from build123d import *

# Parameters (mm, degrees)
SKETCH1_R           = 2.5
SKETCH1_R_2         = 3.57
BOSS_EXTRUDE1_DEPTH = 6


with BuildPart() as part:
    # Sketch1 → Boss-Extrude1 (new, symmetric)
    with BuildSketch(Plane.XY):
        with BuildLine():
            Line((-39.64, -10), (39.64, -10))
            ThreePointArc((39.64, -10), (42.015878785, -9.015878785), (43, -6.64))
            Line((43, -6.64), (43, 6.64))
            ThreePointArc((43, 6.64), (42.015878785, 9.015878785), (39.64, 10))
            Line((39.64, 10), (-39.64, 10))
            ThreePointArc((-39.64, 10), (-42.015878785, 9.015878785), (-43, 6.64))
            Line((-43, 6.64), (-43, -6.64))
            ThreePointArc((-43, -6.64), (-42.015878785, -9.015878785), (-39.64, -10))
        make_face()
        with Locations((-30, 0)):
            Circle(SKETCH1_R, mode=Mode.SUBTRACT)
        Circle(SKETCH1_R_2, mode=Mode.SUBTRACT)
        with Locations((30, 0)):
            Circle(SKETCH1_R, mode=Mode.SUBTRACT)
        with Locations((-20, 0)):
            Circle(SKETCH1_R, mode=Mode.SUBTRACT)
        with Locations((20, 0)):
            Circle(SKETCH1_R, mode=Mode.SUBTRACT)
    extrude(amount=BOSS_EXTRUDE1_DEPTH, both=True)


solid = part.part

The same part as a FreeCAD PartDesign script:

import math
import FreeCAD as App
import Part
import Sketcher

doc = App.newDocument("Part")
body = doc.addObject("PartDesign::Body", "Body")

# Sketch on XY plane
sketch1 = body.newObject("Sketcher::SketchObject", "Sketch")
sketch1.AttachmentSupport = (doc.getObject("XY_Plane"), [""])
sketch1.MapMode = "FlatFace"
sketch1.addGeometry([
    Part.LineSegment(App.Vector(-39.64, -10, 0), App.Vector(39.64, -10, 0)),  # 0
    Part.ArcOfCircle(Part.Circle(App.Vector(39.64, -6.64, 0), App.Vector(0, 0, 1), 3.36), math.radians(-90), math.radians(0)),  # 1
    Part.LineSegment(App.Vector(43, -6.64, 0), App.Vector(43, 6.64, 0)),  # 2
    Part.ArcOfCircle(Part.Circle(App.Vector(39.64, 6.64, 0), App.Vector(0, 0, 1), 3.36), math.radians(0), math.radians(90)),  # 3
    Part.LineSegment(App.Vector(39.64, 10, 0), App.Vector(-39.64, 10, 0)),  # 4
    Part.ArcOfCircle(Part.Circle(App.Vector(-39.64, 6.64, 0), App.Vector(0, 0, 1), 3.36), math.radians(90), math.radians(180)),  # 5
    Part.LineSegment(App.Vector(-43, 6.64, 0), App.Vector(-43, -6.64, 0)),  # 6
    Part.ArcOfCircle(Part.Circle(App.Vector(-39.64, -6.64, 0), App.Vector(0, 0, 1), 3.36), math.radians(180), math.radians(270)),  # 7
    Part.Circle(App.Vector(-30, 0, 0), App.Vector(0, 0, 1), 2.5),  # 8
    Part.Circle(App.Vector(-20, 0, 0), App.Vector(0, 0, 1), 2.5),  # 9
    Part.Circle(App.Vector(0, 0, 0), App.Vector(0, 0, 1), 3.57),  # 10
    Part.Circle(App.Vector(20, 0, 0), App.Vector(0, 0, 1), 2.5),  # 11
    Part.Circle(App.Vector(30, 0, 0), App.Vector(0, 0, 1), 2.5),  # 12
], False)
sketch1.addConstraint([
    Sketcher.Constraint("Tangent", 0, 2, 1, 1),
    Sketcher.Constraint("Tangent", 1, 2, 2, 1),
    Sketcher.Constraint("Tangent", 2, 2, 3, 1),
    Sketcher.Constraint("Tangent", 3, 2, 4, 1),
    Sketcher.Constraint("Tangent", 4, 2, 5, 1),
    Sketcher.Constraint("Tangent", 5, 2, 6, 1),
    Sketcher.Constraint("Tangent", 6, 2, 7, 1),
    Sketcher.Constraint("Tangent", 7, 2, 0, 1),
    Sketcher.Constraint("Horizontal", 0),
    Sketcher.Constraint("Vertical", 2),
    Sketcher.Constraint("Horizontal", 4),
    Sketcher.Constraint("Vertical", 6),
    Sketcher.Constraint("Coincident", 10, 3, -1, 1),
    Sketcher.Constraint("Equal", 1, 3),
    Sketcher.Constraint("Equal", 3, 5),
    Sketcher.Constraint("Equal", 5, 7),
    Sketcher.Constraint("Equal", 8, 9),
    Sketcher.Constraint("Equal", 9, 11),
    Sketcher.Constraint("Equal", 11, 12),
    Sketcher.Constraint("Symmetric", 1, 3, 5, 3, -1, 1),
    Sketcher.Constraint("Symmetric", 9, 3, 11, 3, -1, 1),
    Sketcher.Constraint("Symmetric", 8, 3, 12, 3, -1, 1),
    Sketcher.Constraint("PointOnObject", 8, 3, -1),
    Sketcher.Constraint("PointOnObject", 9, 3, -1),
    Sketcher.Constraint("Diameter", 8, 5.0),
    Sketcher.Constraint("Diameter", 10, 7.14),
    Sketcher.Constraint("Radius", 1, 3.36),
    Sketcher.Constraint("DistanceX", 8, 3, -1, 1, 30.0),
    Sketcher.Constraint("DistanceX", 9, 3, -1, 1, 20.0),
    Sketcher.Constraint("DistanceY", 0, 2, -1, 1, 10.0),
    Sketcher.Constraint("DistanceX", -1, 1, 1, 2, 43.0),
])
pad1 = body.newObject("PartDesign::Pad", "Pad")
pad1.Profile = sketch1
pad1.Length = 12
pad1.Midplane = True

doc.recompute()
